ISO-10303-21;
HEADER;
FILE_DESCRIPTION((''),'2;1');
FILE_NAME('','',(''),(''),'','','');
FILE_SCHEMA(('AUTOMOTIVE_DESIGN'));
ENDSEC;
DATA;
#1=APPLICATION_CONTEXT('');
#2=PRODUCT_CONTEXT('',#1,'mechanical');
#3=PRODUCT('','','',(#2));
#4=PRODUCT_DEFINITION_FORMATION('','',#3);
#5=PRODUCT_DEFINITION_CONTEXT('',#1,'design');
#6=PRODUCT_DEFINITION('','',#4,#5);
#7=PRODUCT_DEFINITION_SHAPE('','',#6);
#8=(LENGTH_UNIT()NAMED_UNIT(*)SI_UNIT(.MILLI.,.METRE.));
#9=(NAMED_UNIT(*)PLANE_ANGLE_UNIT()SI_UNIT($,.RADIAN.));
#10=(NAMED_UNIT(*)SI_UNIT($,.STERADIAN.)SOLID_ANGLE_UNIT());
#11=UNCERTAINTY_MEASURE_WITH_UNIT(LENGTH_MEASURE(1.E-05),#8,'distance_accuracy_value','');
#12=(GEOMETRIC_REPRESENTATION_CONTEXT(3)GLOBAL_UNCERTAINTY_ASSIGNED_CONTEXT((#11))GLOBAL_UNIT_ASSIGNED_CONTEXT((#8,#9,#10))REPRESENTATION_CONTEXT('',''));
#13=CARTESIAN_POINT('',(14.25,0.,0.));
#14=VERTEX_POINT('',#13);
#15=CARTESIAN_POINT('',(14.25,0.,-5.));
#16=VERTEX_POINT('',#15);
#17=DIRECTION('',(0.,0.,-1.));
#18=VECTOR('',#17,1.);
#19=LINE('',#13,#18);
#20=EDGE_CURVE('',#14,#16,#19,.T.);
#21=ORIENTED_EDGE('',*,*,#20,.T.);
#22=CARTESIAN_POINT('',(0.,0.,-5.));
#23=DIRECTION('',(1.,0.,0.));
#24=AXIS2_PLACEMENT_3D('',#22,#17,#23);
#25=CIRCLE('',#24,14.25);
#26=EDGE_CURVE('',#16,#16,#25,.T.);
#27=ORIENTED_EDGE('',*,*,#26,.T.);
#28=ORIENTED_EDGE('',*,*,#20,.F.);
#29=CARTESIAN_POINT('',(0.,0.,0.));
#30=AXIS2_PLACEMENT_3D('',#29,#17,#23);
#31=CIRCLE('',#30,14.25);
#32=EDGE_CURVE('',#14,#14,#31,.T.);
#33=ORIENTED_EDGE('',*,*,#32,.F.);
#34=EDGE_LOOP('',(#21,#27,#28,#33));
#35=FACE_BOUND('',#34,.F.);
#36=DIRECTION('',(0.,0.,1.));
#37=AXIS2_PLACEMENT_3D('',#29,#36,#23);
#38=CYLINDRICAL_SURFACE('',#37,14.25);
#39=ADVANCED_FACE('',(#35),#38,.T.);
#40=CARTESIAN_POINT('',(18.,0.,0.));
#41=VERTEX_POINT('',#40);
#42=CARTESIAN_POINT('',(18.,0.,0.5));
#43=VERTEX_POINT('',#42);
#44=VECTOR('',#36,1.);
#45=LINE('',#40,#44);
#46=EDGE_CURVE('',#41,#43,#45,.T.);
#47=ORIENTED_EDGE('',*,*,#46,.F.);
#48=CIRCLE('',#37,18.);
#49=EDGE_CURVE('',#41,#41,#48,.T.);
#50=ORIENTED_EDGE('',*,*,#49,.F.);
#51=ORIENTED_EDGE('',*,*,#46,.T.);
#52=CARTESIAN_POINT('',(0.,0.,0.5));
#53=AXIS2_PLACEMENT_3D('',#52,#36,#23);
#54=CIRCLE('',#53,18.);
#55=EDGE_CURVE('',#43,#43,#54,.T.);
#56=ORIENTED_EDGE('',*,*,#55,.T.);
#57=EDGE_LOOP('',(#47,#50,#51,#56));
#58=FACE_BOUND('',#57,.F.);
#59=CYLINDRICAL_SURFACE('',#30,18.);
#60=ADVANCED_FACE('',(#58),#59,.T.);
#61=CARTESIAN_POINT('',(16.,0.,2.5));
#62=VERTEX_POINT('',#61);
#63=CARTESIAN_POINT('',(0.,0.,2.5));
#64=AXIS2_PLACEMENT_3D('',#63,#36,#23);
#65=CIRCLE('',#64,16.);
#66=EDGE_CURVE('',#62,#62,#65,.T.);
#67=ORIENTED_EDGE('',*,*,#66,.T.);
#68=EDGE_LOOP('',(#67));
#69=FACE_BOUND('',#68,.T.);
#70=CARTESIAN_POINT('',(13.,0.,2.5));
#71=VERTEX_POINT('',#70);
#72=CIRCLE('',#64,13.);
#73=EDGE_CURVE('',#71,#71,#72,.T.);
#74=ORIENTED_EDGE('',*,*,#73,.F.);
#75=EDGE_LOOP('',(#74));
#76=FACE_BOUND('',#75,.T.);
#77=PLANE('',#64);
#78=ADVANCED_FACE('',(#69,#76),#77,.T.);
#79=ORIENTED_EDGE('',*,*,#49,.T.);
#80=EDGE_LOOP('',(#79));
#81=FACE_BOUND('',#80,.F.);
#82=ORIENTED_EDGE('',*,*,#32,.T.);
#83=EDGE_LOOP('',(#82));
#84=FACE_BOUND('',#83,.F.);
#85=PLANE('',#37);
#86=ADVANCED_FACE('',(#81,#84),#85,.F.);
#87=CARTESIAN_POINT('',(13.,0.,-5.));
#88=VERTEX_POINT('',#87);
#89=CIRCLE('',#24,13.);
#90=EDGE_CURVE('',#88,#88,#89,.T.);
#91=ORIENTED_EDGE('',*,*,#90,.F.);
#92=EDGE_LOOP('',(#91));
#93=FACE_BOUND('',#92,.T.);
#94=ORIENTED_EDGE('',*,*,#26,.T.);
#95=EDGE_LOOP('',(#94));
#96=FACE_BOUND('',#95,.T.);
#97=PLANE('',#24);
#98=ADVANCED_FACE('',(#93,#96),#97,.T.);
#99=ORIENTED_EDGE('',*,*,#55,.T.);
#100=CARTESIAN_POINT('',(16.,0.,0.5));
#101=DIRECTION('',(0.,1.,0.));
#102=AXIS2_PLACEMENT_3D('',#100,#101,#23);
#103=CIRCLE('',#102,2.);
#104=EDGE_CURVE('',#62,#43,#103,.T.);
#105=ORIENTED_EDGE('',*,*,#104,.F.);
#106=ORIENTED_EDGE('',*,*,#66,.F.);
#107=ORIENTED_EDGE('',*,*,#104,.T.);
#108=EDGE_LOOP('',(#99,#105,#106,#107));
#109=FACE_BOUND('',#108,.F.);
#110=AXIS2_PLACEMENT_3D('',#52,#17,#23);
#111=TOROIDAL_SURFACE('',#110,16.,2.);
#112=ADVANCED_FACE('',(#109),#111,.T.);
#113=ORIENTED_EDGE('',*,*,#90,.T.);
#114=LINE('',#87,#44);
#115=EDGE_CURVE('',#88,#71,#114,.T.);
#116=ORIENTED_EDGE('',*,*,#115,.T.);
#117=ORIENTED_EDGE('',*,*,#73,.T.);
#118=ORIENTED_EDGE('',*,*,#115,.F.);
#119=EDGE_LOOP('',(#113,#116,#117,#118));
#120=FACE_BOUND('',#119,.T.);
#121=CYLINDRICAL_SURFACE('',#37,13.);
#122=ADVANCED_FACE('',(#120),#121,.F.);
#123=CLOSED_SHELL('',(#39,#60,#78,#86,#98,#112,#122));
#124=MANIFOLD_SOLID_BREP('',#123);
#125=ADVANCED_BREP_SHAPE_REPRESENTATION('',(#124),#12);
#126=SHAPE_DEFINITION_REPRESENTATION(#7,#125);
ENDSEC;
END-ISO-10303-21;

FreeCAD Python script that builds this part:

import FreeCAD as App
import Part
import Sketcher
from FreeCAD import Vector
Q = App.Units.Quantity


def edges_at(feature, points):
    """Names of the edges that pass closest to the given points."""
    edges = feature.Shape.Edges
    near = lambda p: min(range(len(edges)), key=lambda i: edges[i].distToShape(Part.Vertex(*p))[0])
    return sorted({f"Edge{near(p) + 1}" for p in points})

doc = App.newDocument("Part")
body = doc.addObject("PartDesign::Body", "Body")

sketch1 = body.newObject("Sketcher::SketchObject", "Sketch")
sketch1.AttachmentSupport = (doc.getObject("XY_Plane"), [""])
sketch1.MapMode = "FlatFace"
sketch1.addGeometry([
    Part.Circle(Vector(0, 0, 0), Vector(0, 0, 1), 18),
    Part.Circle(Vector(0, 0, 0), Vector(0, 0, 1), 13),
], False)
sketch1.addConstraint([
    Sketcher.Constraint("Coincident", 0, 3, -1, 1),
    Sketcher.Constraint("Coincident", 1, 3, -1, 1),
    Sketcher.Constraint("Diameter", 0, Q("36 mm")),
    Sketcher.Constraint("Diameter", 1, Q("26 mm")),
])
pad1 = body.newObject("PartDesign::Pad", "Pad")
pad1.Profile = sketch1
pad1.Length = 2.5

sketch2 = body.newObject("Sketcher::SketchObject", "Sketch001")
sketch2.AttachmentSupport = (doc.getObject("XY_Plane"), [""])
sketch2.MapMode = "FlatFace"
sketch2.addGeometry([
    Part.Circle(Vector(0, 0, 0), Vector(0, 0, 1), 14),
    Part.Circle(Vector(0, 0, 0), Vector(0, 0, 1), 13),
], False)
sketch2.addConstraint([
    Sketcher.Constraint("Coincident", 0, 3, -1, 1),
    Sketcher.Constraint("Coincident", 1, 3, -1, 1),
    Sketcher.Constraint("Diameter", 1, Q("26 mm")),
    Sketcher.Constraint("Diameter", 0, Q("28.5 mm")),
])
pad2 = body.newObject("PartDesign::Pad", "Pad001")
pad2.Profile = sketch2
pad2.Length = 5
pad2.Reversed = True
doc.recompute()

fillet = body.newObject("PartDesign::Fillet", "Fillet")
fillet.Base = (pad2, edges_at(pad2, [(-18, 0, 2.5)]))
fillet.Radius = 2

doc.recompute()
